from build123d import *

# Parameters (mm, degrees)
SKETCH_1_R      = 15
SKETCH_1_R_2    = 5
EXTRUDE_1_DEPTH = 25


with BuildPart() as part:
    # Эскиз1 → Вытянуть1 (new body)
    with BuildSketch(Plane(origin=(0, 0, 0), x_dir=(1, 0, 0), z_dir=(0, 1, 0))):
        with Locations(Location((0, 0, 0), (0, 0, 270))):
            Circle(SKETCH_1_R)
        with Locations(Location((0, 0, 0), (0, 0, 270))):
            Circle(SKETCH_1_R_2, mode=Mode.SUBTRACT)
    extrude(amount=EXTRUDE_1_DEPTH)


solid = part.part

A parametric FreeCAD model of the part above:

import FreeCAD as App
import Part
import Sketcher

V = App.Vector

doc = App.newDocument("Part")
body = doc.addObject("PartDesign::Body", "Body")

# Sketch on XZ plane
sketch1 = body.newObject("Sketcher::SketchObject", "Sketch")
sketch1.AttachmentSupport = (doc.getObject("XZ_Plane"), [""])
sketch1.MapMode = "FlatFace"
sketch1.addGeometry([
    Part.Circle(V(0, 0, 0), V(0, 0, 1), 15),
    Part.Circle(V(0, 0, 0), V(0, 0, 1), 5),
], False)
sketch1.addConstraint([
    Sketcher.Constraint("Coincident", 0, 3, -1, 1),
    Sketcher.Constraint("Coincident", 1, 3, -1, 1),
    Sketcher.Constraint("Diameter", 0, 30.0),
    Sketcher.Constraint("Diameter", 1, 10.0),
])
pad1 = body.newObject("PartDesign::Pad", "Pad")
pad1.Profile = sketch1
pad1.Length = 25
pad1.Reversed = True

doc.recompute()
